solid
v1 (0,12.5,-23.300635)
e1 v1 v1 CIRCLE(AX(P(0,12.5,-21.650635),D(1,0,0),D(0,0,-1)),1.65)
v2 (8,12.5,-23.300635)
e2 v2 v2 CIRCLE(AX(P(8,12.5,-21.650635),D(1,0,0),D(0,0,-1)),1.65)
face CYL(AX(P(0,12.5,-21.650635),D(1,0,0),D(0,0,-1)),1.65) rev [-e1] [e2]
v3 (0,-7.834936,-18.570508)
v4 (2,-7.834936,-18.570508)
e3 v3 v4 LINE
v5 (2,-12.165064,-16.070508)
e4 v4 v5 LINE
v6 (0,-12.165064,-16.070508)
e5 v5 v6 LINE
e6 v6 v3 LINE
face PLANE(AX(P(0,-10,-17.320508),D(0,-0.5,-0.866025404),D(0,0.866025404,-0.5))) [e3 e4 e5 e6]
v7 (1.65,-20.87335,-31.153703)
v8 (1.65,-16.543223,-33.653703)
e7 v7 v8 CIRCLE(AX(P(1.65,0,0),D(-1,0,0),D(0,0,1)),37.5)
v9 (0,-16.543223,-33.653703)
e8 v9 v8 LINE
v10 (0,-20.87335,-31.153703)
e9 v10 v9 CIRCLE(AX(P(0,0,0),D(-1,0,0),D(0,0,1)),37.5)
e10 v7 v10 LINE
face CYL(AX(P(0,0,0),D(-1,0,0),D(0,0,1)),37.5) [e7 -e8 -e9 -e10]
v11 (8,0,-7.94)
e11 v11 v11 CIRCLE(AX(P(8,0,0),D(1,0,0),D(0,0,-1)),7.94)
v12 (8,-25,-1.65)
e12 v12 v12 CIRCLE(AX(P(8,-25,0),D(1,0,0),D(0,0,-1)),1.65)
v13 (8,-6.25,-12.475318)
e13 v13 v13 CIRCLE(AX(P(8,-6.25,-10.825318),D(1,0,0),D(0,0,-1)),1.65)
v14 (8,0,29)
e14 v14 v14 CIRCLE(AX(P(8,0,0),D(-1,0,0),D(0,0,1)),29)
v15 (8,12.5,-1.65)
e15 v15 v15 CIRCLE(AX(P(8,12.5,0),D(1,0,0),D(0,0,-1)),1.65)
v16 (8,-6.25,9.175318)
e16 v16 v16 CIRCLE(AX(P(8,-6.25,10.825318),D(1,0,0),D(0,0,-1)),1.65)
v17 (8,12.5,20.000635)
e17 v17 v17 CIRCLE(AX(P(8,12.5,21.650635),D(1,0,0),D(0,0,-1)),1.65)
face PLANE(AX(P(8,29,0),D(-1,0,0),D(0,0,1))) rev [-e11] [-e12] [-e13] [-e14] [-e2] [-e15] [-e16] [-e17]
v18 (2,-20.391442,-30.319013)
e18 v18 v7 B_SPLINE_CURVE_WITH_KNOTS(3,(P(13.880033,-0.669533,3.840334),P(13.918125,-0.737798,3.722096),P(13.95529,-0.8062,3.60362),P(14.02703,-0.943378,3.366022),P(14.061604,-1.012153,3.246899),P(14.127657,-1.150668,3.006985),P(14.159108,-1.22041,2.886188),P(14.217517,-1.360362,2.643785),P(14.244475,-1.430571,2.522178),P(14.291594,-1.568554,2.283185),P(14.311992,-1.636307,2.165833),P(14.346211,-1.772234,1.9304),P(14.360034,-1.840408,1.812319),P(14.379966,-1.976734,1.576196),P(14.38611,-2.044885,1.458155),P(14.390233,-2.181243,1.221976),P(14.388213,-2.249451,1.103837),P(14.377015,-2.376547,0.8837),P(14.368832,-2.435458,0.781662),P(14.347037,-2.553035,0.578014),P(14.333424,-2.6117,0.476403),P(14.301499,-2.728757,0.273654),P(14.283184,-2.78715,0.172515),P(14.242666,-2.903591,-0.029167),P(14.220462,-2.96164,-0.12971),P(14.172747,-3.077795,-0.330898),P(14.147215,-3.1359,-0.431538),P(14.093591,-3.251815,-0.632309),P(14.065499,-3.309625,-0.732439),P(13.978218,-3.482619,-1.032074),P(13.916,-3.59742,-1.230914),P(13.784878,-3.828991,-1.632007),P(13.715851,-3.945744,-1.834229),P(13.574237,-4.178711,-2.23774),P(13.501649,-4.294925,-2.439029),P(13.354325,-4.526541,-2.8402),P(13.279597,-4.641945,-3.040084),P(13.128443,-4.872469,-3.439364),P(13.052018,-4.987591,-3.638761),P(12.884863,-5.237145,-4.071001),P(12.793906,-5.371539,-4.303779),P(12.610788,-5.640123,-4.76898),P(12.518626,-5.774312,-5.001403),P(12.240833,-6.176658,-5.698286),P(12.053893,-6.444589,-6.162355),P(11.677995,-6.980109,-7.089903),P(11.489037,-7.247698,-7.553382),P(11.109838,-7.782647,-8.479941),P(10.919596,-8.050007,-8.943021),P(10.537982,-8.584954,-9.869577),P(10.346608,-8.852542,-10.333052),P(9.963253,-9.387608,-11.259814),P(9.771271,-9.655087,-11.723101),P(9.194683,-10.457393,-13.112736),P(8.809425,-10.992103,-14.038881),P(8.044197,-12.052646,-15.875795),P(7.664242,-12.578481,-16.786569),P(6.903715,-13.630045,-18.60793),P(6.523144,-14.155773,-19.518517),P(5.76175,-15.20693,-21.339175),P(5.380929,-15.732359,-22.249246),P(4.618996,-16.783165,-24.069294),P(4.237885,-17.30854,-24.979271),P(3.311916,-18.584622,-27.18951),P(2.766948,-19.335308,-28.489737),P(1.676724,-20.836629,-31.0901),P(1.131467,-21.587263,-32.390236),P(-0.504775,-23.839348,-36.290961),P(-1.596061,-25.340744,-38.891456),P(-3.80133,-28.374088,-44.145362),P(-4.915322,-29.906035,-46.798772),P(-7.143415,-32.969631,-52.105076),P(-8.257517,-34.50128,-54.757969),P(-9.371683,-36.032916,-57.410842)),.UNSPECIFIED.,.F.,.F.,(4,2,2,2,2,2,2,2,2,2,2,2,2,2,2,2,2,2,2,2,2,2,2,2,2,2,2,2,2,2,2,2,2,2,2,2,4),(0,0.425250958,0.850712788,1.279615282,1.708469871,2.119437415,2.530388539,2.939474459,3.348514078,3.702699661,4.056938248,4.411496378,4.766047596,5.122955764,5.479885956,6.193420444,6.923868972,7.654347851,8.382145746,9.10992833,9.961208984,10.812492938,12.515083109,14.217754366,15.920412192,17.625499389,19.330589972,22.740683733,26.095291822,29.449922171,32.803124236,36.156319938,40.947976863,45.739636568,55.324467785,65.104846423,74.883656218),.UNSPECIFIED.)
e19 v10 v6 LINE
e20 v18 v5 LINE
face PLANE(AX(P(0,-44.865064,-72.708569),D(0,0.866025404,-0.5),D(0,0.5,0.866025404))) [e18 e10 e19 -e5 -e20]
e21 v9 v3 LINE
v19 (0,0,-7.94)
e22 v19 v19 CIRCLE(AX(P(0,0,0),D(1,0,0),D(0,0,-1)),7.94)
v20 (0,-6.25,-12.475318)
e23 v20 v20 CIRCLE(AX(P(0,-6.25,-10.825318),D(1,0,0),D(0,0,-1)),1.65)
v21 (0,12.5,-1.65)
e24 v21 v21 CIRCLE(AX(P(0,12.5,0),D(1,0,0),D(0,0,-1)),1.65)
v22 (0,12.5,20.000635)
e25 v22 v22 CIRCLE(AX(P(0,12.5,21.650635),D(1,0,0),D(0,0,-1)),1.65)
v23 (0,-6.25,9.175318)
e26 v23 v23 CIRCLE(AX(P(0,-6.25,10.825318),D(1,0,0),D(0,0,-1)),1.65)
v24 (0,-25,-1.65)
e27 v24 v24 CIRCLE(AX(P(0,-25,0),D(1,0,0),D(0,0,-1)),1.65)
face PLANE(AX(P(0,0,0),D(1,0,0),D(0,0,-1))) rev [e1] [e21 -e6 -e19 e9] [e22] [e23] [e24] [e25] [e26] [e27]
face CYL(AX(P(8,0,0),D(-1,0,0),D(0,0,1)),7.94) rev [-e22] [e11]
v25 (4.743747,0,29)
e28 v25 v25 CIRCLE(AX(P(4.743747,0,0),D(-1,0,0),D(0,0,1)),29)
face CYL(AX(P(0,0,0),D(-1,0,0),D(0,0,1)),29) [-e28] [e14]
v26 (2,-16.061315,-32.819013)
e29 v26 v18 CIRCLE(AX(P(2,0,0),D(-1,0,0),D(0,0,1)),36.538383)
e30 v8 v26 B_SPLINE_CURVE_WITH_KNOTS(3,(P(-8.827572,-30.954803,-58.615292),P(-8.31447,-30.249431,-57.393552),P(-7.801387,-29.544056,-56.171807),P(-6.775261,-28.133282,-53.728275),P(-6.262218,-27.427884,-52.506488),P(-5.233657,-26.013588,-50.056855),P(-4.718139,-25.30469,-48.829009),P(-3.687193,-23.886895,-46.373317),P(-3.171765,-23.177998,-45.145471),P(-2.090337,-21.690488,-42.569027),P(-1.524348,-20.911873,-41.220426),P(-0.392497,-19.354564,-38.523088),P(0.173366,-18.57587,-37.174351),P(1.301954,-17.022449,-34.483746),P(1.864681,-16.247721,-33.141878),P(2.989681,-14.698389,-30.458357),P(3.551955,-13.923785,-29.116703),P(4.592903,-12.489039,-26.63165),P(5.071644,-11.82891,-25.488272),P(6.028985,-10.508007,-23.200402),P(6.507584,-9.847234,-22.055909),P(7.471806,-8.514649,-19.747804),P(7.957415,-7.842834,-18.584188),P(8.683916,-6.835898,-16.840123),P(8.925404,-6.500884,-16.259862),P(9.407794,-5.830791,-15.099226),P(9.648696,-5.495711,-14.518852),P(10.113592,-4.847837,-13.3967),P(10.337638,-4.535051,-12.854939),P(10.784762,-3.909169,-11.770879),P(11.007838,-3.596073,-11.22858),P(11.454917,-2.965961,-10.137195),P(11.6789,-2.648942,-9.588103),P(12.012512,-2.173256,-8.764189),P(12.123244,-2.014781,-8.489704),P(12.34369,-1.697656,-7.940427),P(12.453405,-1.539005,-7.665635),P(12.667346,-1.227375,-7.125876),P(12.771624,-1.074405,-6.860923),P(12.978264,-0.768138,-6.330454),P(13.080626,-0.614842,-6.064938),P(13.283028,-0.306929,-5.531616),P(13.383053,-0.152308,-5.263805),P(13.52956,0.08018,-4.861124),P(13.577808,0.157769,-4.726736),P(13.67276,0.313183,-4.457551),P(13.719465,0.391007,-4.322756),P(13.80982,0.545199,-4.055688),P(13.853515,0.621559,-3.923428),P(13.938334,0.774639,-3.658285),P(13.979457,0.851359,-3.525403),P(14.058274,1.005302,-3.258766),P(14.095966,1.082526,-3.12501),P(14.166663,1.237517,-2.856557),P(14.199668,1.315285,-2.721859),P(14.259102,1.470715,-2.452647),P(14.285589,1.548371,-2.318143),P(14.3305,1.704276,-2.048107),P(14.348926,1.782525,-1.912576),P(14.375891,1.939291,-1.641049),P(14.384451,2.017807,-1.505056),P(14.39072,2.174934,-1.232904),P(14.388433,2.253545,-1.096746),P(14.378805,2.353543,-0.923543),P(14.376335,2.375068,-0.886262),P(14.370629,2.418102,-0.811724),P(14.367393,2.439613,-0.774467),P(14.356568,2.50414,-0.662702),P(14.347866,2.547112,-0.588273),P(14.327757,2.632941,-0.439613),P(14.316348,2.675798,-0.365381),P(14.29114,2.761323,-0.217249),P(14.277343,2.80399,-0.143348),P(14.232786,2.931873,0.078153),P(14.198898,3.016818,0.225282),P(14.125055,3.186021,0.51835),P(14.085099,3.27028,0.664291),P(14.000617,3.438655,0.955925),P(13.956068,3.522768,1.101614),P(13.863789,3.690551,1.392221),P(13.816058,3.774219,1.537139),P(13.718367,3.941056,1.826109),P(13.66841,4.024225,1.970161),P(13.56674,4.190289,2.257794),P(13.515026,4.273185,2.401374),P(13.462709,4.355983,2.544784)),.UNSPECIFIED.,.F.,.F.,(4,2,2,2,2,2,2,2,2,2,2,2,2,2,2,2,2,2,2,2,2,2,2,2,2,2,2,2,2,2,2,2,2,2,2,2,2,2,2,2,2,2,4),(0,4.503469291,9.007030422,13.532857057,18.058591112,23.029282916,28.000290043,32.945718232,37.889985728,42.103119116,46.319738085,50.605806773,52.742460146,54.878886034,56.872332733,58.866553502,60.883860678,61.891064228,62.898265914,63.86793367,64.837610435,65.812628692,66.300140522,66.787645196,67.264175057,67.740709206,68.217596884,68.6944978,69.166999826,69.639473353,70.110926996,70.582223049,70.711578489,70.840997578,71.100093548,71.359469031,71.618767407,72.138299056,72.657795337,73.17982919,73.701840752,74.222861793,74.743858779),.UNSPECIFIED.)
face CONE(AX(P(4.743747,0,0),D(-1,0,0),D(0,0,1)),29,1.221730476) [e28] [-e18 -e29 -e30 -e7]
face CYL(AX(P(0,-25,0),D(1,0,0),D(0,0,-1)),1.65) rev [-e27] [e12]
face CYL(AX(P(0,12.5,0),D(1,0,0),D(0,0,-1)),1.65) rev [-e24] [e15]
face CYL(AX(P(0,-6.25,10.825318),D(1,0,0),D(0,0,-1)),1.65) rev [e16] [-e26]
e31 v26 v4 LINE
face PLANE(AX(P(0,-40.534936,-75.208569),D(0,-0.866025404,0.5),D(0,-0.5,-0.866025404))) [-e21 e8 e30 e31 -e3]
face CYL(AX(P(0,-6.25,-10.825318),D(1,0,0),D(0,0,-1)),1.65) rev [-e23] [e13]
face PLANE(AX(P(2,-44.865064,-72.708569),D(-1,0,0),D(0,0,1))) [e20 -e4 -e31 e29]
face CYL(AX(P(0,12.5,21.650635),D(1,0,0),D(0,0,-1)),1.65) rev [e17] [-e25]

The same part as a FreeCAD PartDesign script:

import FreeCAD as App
import Part
import Sketcher
Q = App.Units.Quantity

doc = App.newDocument("Part")
body = doc.addObject("PartDesign::Body", "Body")

# Sketch on XY plane
sketch1 = body.newObject("Sketcher::SketchObject", "Sketch")
sketch1.AttachmentSupport = (doc.getObject("XY_Plane"), [""])
sketch1.MapMode = "FlatFace"
sketch1.addGeometry(Part.LineSegment(App.Vector(0, 0, 0), App.Vector(8, 0, 0)), False)
sketch1.addGeometry(Part.LineSegment(App.Vector(8, 0, 0), App.Vector(8, 29, 0)), False)
sketch1.addGeometry(Part.LineSegment(App.Vector(8, 29, 0), App.Vector(4.7, 29, 0)), False)
sketch1.addGeometry(Part.LineSegment(App.Vector(4.7, 29, 0), App.Vector(1.6, 37.5, 0)), False)
sketch1.addGeometry(Part.LineSegment(App.Vector(1.6, 37.5, 0), App.Vector(0, 37.5, 0)), False)
sketch1.addGeometry(Part.LineSegment(App.Vector(0, 37.5, 0), App.Vector(0, 0, 0)), False)
sketch1.addConstraint(Sketcher.Constraint("Coincident", 0, 2, 1, 1))
sketch1.addConstraint(Sketcher.Constraint("Coincident", 1, 2, 2, 1))
sketch1.addConstraint(Sketcher.Constraint("Coincident", 2, 2, 3, 1))
sketch1.addConstraint(Sketcher.Constraint("Coincident", 3, 2, 4, 1))
sketch1.addConstraint(Sketcher.Constraint("Coincident", 4, 2, 5, 1))
sketch1.addConstraint(Sketcher.Constraint("Coincident", 5, 2, 0, 1))
sketch1.addConstraint(Sketcher.Constraint("Horizontal", 0))
sketch1.addConstraint(Sketcher.Constraint("Vertical", 1))
sketch1.addConstraint(Sketcher.Constraint("Horizontal", 2))
sketch1.addConstraint(Sketcher.Constraint("Horizontal", 4))
sketch1.addConstraint(Sketcher.Constraint("Vertical", 5))
sketch1.addConstraint(Sketcher.Constraint("Coincident", 5, 2, -1, 1))
sketch1.addConstraint(Sketcher.Constraint("DistanceX", 0, 1, 0, 2, Q("8 mm")))
sketch1.addConstraint(Sketcher.Constraint("DistanceY", 1, 1, 1, 2, Q("29 mm")))
sketch1.addConstraint(Sketcher.Constraint("Angle", 3, Q("110 deg")))
sketch1.addConstraint(Sketcher.Constraint("DistanceY", 5, 2, 5, 1, Q("37.5 mm")))
sketch1.addConstraint(Sketcher.Constraint("DistanceX", 4, 2, 4, 1, Q("1.65 mm")))
revolution = body.newObject("PartDesign::Revolution", "Revolution")
revolution.Profile = sketch1
revolution.ReferenceAxis = (sketch1, ["H_Axis"])
revolution.Angle = 360

# Sketch on YZ plane
sketch2 = body.newObject("Sketcher::SketchObject", "Sketch001")
sketch2.AttachmentSupport = (doc.getObject("YZ_Plane"), [""])
sketch2.MapMode = "FlatFace"
sketch2.addGeometry(Part.Circle(App.Vector(0, 0, 0), App.Vector(0, 0, 1), 8), False)
sketch2.addConstraint(Sketcher.Constraint("Coincident", 0, 3, -1, 1))
sketch2.addConstraint(Sketcher.Constraint("Diameter", 0, Q("15.88 mm")))
pocket1 = body.newObject("PartDesign::Pocket", "Pocket")
pocket1.Profile = sketch2
pocket1.Type = "ThroughAll"
pocket1.Reversed = True

# Sketch on YZ plane
sketch3 = body.newObject("Sketcher::SketchObject", "Sketch002")
sketch3.AttachmentSupport = (doc.getObject("YZ_Plane"), [""])
sketch3.MapMode = "FlatFace"
sketch3.AttachmentOffset = App.Placement(App.Vector(0, 0, 8), App.Rotation())
sketch3.addGeometry(Part.Circle(App.Vector(12.5, 0, 0), App.Vector(0, 0, 1), 1.6), False)
sketch3.addGeometry(Part.Circle(App.Vector(-6.2, 10.8, 0), App.Vector(0, 0, 1), 1.6), False)
sketch3.addGeometry(Part.Circle(App.Vector(-6.2, -10.8, 0), App.Vector(0, 0, 1), 1.6), False)
sketch3.addGeometry(Part.Circle(App.Vector(12.5, 21.7, 0), App.Vector(0, 0, 1), 1.6), False)
sketch3.addGeometry(Part.Circle(App.Vector(12.5, -21.7, 0), App.Vector(0, 0, 1), 1.6), False)
sketch3.addGeometry(Part.Circle(App.Vector(-25, 0, 0), App.Vector(0, 0, 1), 1.6), False)
sketch3.addConstraint(Sketcher.Constraint("Equal", 0, 1))
sketch3.addConstraint(Sketcher.Constraint("Equal", 1, 2))
sketch3.addConstraint(Sketcher.Constraint("Equal", 2, 3))
sketch3.addConstraint(Sketcher.Constraint("Equal", 3, 4))
sketch3.addConstraint(Sketcher.Constraint("Equal", 4, 5))
sketch3.addConstraint(Sketcher.Constraint("Symmetric", 1, 3, 2, 3, -1))
sketch3.addConstraint(Sketcher.Constraint("Symmetric", 3, 3, 4, 3, -1))
sketch3.addConstraint(Sketcher.Constraint("PointOnObject", 0, 3, -1))
sketch3.addConstraint(Sketcher.Constraint("PointOnObject", 5, 3, -1))
sketch3.addConstraint(Sketcher.Constraint("Vertical", 0, 3, 3, 3))
sketch3.addConstraint(Sketcher.Constraint("Diameter", 0, Q("3.3 mm")))
sketch3.addConstraint(Sketcher.Constraint("DistanceX", 5, 3, -1, 1, Q("25 mm")))
sketch3.addConstraint(Sketcher.Constraint("DistanceX", -1, 1, 0, 3, Q("12.5 mm")))
sketch3.addConstraint(Sketcher.Constraint("DistanceX", 1, 3, -1, 1, Q("6.25 mm")))
sketch3.addConstraint(Sketcher.Constraint("DistanceY", 4, 3, 3, 3, Q("43.30127 mm")))
sketch3.addConstraint(Sketcher.Constraint("DistanceY", -1, 1, 1, 3, Q("10.825318 mm")))
pocket2 = body.newObject("PartDesign::Pocket", "Pocket001")
pocket2.Profile = sketch3
pocket2.Type = "ThroughAll"

# Sketch on an angled plane
sketch4 = body.newObject("Sketcher::SketchObject", "Sketch003")
sketch4.Placement = App.Placement(App.Vector(0, -38.5, -0.866025), App.Rotation(App.Vector(1, 0, 0), App.Vector(0, -0.866025404, 0.5), App.Vector(0, -0.5, -0.866025404), "ZXY"))
sketch4.addGeometry(Part.LineSegment(App.Vector(0, -30.4, 0), App.Vector(0, -35.4, 0)), False)
sketch4.addGeometry(Part.LineSegment(App.Vector(0, -35.4, 0), App.Vector(2, -35.4, 0)), False)
sketch4.addGeometry(Part.LineSegment(App.Vector(2, -35.4, 0), App.Vector(2, -30.4, 0)), False)
sketch4.addGeometry(Part.LineSegment(App.Vector(2, -30.4, 0), App.Vector(0, -30.4, 0)), False)
sketch4.addConstraint(Sketcher.Constraint("Coincident", 0, 2, 1, 1))
sketch4.addConstraint(Sketcher.Constraint("Coincident", 1, 2, 2, 1))
sketch4.addConstraint(Sketcher.Constraint("Coincident", 2, 2, 3, 1))
sketch4.addConstraint(Sketcher.Constraint("Coincident", 3, 2, 0, 1))
sketch4.addConstraint(Sketcher.Constraint("Vertical", 0))
sketch4.addConstraint(Sketcher.Constraint("Horizontal", 1))
sketch4.addConstraint(Sketcher.Constraint("Vertical", 2))
sketch4.addConstraint(Sketcher.Constraint("Horizontal", 3))
sketch4.addConstraint(Sketcher.Constraint("PointOnObject", 0, 2, -2))
sketch4.addConstraint(Sketcher.Constraint("DistanceX", 1, 1, 1, 2, Q("2 mm")))
sketch4.addConstraint(Sketcher.Constraint("DistanceY", 0, 2, 0, 1, Q("5 mm")))
sketch4.addConstraint(Sketcher.Constraint("DistanceY", 0, 2, -1, 1, Q("35.408965 mm")))
pocket3 = body.newObject("PartDesign::Pocket", "Pocket002")
pocket3.Profile = sketch4
pocket3.Length = 65.4
pocket3.Reversed = True

doc.recompute()
